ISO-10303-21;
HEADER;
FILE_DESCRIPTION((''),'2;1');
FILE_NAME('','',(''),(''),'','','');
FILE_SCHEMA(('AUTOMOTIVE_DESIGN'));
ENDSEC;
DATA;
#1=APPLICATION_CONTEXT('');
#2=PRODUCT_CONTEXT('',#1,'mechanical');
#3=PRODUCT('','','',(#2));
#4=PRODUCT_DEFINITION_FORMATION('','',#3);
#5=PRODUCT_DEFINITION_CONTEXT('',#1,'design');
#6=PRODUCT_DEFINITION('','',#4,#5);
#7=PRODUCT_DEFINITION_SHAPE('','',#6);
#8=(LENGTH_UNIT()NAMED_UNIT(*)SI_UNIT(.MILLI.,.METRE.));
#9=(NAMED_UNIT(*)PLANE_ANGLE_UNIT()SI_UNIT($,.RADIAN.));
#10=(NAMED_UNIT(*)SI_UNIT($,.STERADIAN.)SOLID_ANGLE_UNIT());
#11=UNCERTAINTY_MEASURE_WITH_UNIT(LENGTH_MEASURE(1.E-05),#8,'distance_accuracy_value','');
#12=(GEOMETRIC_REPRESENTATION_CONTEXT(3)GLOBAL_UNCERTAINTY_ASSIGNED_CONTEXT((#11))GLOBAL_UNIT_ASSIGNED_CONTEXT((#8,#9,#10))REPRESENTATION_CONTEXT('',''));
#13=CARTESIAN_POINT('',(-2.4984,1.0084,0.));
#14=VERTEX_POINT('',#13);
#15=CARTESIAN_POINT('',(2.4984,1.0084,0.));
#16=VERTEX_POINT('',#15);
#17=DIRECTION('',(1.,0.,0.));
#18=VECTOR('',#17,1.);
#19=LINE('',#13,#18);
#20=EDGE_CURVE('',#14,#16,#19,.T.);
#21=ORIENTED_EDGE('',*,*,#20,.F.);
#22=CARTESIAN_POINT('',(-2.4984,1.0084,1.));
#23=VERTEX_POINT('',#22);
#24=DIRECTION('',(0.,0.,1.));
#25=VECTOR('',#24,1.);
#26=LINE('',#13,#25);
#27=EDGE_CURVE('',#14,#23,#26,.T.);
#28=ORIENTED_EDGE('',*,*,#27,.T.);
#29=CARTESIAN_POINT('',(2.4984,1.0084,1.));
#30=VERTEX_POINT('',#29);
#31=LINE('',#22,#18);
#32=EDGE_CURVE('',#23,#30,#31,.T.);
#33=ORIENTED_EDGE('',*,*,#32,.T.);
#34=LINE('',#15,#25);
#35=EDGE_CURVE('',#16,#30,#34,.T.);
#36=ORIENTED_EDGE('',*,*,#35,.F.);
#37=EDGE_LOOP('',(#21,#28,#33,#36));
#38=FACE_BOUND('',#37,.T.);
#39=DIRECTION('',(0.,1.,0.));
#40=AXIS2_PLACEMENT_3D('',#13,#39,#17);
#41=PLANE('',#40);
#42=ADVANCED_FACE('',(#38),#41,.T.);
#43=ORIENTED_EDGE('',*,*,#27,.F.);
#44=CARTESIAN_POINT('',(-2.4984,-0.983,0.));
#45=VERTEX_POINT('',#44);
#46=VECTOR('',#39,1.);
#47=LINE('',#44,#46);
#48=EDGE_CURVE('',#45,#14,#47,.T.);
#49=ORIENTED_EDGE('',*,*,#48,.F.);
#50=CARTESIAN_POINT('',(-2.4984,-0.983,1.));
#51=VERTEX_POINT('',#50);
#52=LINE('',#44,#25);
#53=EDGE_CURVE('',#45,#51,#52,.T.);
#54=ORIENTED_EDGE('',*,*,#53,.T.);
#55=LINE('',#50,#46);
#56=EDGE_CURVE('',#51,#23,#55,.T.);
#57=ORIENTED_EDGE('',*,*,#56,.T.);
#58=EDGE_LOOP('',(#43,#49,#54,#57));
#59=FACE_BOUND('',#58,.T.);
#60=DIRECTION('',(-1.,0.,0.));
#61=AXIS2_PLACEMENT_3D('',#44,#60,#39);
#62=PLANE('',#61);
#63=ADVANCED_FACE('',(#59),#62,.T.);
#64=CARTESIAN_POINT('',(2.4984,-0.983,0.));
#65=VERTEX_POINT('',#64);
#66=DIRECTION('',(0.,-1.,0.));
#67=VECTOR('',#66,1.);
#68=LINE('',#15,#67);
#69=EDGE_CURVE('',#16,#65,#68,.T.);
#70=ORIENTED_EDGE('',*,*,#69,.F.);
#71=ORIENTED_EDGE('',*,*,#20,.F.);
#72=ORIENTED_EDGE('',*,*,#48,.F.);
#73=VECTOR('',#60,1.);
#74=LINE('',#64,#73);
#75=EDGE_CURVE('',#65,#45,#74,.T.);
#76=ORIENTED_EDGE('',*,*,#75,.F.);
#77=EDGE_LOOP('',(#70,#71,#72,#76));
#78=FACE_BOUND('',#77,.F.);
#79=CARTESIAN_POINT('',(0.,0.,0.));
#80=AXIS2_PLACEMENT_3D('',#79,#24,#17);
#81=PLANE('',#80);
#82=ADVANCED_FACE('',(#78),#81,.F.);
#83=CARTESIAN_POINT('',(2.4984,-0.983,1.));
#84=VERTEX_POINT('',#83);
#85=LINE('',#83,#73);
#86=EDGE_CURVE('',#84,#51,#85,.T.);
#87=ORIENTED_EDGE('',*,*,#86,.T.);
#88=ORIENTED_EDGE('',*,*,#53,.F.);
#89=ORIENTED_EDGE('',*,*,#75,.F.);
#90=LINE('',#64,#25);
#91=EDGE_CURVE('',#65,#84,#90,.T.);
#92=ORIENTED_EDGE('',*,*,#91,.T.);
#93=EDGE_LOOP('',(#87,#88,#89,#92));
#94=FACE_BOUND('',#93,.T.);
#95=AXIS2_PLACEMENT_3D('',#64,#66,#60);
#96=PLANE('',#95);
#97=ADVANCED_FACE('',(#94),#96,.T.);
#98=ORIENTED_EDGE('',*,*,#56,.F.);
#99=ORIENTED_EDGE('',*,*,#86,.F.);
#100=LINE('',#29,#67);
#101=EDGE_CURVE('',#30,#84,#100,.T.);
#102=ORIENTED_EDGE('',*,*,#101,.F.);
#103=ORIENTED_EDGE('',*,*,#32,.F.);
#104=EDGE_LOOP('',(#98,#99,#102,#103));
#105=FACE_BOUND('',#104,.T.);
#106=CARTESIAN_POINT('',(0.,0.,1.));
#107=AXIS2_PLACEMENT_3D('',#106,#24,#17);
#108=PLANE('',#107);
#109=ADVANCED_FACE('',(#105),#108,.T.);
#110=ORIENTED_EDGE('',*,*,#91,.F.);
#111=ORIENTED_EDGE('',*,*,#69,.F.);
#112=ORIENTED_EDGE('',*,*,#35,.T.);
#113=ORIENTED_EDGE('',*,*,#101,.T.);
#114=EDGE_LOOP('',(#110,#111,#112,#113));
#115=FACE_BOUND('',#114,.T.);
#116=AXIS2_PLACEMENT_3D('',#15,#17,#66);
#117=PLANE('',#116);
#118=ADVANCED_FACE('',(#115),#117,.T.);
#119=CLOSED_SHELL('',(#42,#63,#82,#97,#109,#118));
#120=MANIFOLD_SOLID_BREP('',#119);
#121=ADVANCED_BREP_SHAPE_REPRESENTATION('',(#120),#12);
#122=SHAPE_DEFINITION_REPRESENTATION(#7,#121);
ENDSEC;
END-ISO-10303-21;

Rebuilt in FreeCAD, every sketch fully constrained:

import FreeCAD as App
import Part
import Sketcher


def add_polygon(sketch, points):
    """Adds a closed chain of lines whose ends are joined by coincident constraints."""
    first, n = sketch.GeometryCount, len(points)
    for a, b in zip(points, points[1:] + points[:1]):
        sketch.addGeometry(Part.LineSegment(App.Vector(*a, 0), App.Vector(*b, 0)), False)
    for i in range(n):
        sketch.addConstraint(Sketcher.Constraint("Coincident", first + i, 2, first + (i + 1) % n, 1))

doc = App.newDocument("Part")
body = doc.addObject("PartDesign::Body", "Body")

sketch1 = doc.addObject("Sketcher::SketchObject", "Sketch")
body.addObject(sketch1)
sketch1.AttachmentSupport = (doc.XY_Plane, [""])
sketch1.MapMode = "FlatFace"
add_polygon(sketch1, [(2.5, 1), (-2.5, 1), (-2.5, -1), (2.5, -1)])
sketch1.addConstraint([
    Sketcher.Constraint("Horizontal", 0),
    Sketcher.Constraint("Vertical", 1),
    Sketcher.Constraint("Horizontal", 2),
    Sketcher.Constraint("Vertical", 3),
    Sketcher.Constraint("DistanceX", 0, 2, 0, 1, 4.9968),
    Sketcher.Constraint("DistanceY", 1, 2, 1, 1, 1.9914),
    Sketcher.Constraint("DistanceY", 1, 2, -1, 1, 0.983),
    Sketcher.Constraint("DistanceX", 0, 2, -1, 1, 2.4984),
])
pad1 = doc.addObject("PartDesign::Pad", "Pad")
body.addObject(pad1)
pad1.Profile = sketch1
pad1.Length = 1

doc.recompute()
